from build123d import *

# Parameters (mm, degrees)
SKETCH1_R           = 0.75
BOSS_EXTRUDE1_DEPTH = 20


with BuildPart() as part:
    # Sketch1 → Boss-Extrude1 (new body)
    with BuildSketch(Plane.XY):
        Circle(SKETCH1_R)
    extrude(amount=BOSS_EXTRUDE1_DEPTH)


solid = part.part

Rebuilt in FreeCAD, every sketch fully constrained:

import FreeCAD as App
import Part
import Sketcher
Q = App.Units.Quantity

doc = App.newDocument("Part")
body = doc.addObject("PartDesign::Body", "Body")

# Sketch on XY plane
sketch1 = body.newObject("Sketcher::SketchObject", "Sketch")
sketch1.AttachmentSupport = (doc.getObject("XY_Plane"), [""])
sketch1.MapMode = "FlatFace"
sketch1.addGeometry(Part.Circle(App.Vector(0, 0, 0), App.Vector(0, 0, 1), 0.8), False)
sketch1.addConstraint([
    Sketcher.Constraint("Coincident", 0, 3, -1, 1),
    Sketcher.Constraint("Diameter", 0, Q("1.5 mm")),
])
pad1 = body.newObject("PartDesign::Pad", "Pad")
pad1.Profile = sketch1
pad1.Length = 20

doc.recompute()
